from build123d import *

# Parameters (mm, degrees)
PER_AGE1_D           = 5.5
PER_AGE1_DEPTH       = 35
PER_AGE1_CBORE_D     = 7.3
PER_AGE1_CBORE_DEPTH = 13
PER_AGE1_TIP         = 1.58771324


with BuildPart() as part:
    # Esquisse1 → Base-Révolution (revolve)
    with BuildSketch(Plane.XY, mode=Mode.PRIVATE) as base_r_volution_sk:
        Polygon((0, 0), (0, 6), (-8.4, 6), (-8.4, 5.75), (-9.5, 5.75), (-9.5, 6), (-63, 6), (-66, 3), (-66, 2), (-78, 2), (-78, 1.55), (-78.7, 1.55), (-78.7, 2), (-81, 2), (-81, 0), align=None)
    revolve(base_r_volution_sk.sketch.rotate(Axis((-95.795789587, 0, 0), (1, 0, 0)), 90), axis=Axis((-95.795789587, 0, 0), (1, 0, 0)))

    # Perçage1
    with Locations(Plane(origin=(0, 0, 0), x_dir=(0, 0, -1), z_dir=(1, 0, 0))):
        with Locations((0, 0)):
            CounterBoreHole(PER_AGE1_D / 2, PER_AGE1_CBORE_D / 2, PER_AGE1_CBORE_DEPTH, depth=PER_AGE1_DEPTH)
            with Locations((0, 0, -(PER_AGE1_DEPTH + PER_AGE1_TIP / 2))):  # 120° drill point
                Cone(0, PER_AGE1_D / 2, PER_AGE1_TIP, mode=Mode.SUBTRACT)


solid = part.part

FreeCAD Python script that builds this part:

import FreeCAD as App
import Part
import Sketcher
from FreeCAD import Vector
Q = App.Units.Quantity

doc = App.newDocument("Part")
body = doc.addObject("PartDesign::Body", "Body")

# Sketch on XY plane
sketch1 = body.newObject("Sketcher::SketchObject", "Sketch")
sketch1.AttachmentSupport = (doc.getObject("XY_Plane"), [""])
sketch1.MapMode = "FlatFace"
sketch1.addGeometry([
    Part.LineSegment(Vector(0, 0, 0), Vector(0, 6, 0)),  # 0
    Part.LineSegment(Vector(0, 6, 0), Vector(-8.4, 6, 0)),  # 1
    Part.LineSegment(Vector(-8.4, 6, 0), Vector(-8.4, 5.75, 0)),  # 2
    Part.LineSegment(Vector(-8.4, 5.75, 0), Vector(-9.5, 5.75, 0)),  # 3
    Part.LineSegment(Vector(-9.5, 5.75, 0), Vector(-9.5, 6, 0)),  # 4
    Part.LineSegment(Vector(-9.5, 6, 0), Vector(-63, 6, 0)),  # 5
    Part.LineSegment(Vector(-63, 6, 0), Vector(-66, 3, 0)),  # 6
    Part.LineSegment(Vector(-66, 3, 0), Vector(-66, 2, 0)),  # 7
    Part.LineSegment(Vector(-66, 2, 0), Vector(-78, 2, 0)),  # 8
    Part.LineSegment(Vector(-78, 2, 0), Vector(-78, 1.55, 0)),  # 9
    Part.LineSegment(Vector(-78, 1.55, 0), Vector(-78.7, 1.55, 0)),  # 10
    Part.LineSegment(Vector(-78.7, 1.55, 0), Vector(-78.7, 2, 0)),  # 11
    Part.LineSegment(Vector(-78.7, 2, 0), Vector(-81, 2, 0)),  # 12
    Part.LineSegment(Vector(-81, 2, 0), Vector(-81, 0, 0)),  # 13
    Part.LineSegment(Vector(-81, 0, 0), Vector(0, 0, 0)),  # 14
], False)
sketch1.addConstraint([
    Sketcher.Constraint("Coincident", 0, 2, 1, 1),
    Sketcher.Constraint("Coincident", 1, 2, 2, 1),
    Sketcher.Constraint("Coincident", 2, 2, 3, 1),
    Sketcher.Constraint("Coincident", 3, 2, 4, 1),
    Sketcher.Constraint("Coincident", 4, 2, 5, 1),
    Sketcher.Constraint("Coincident", 5, 2, 6, 1),
    Sketcher.Constraint("Coincident", 6, 2, 7, 1),
    Sketcher.Constraint("Coincident", 7, 2, 8, 1),
    Sketcher.Constraint("Coincident", 8, 2, 9, 1),
    Sketcher.Constraint("Coincident", 9, 2, 10, 1),
    Sketcher.Constraint("Coincident", 10, 2, 11, 1),
    Sketcher.Constraint("Coincident", 11, 2, 12, 1),
    Sketcher.Constraint("Coincident", 12, 2, 13, 1),
    Sketcher.Constraint("Coincident", 13, 2, 14, 1),
    Sketcher.Constraint("Coincident", 14, 2, 0, 1),
    Sketcher.Constraint("Vertical", 0),
    Sketcher.Constraint("Horizontal", 1),
    Sketcher.Constraint("Vertical", 2),
    Sketcher.Constraint("Horizontal", 3),
    Sketcher.Constraint("Vertical", 4),
    Sketcher.Constraint("Horizontal", 5),
    Sketcher.Constraint("Vertical", 7),
    Sketcher.Constraint("Horizontal", 8),
    Sketcher.Constraint("Vertical", 9),
    Sketcher.Constraint("Horizontal", 10),
    Sketcher.Constraint("Vertical", 11),
    Sketcher.Constraint("Horizontal", 12),
    Sketcher.Constraint("Vertical", 13),
    Sketcher.Constraint("Horizontal", 14),
    Sketcher.Constraint("Coincident", 14, 2, -1, 1),
    Sketcher.Constraint("Horizontal", 1, 2, 4, 2),
    Sketcher.Constraint("Horizontal", 8, 2, 11, 2),
    Sketcher.Constraint("DistanceX", 8, 2, 8, 1, 12.0),
    Sketcher.Constraint("DistanceX", 14, 1, 14, 2, 81.0),
    Sketcher.Constraint("DistanceY", 0, 1, 0, 2, 6.0),
    Sketcher.Constraint("DistanceY", 7, 2, 7, 1, 1.0),
    Sketcher.Constraint("DistanceY", 13, 2, 13, 1, 2.0),
    Sketcher.Constraint("Angle", 6, Q("-135 deg")),
    Sketcher.Constraint("DistanceX", 1, 2, 1, 1, 8.4),
    Sketcher.Constraint("DistanceX", 3, 2, 3, 1, 1.1),
    Sketcher.Constraint("DistanceX", 5, 2, 5, 1, 53.5),
    Sketcher.Constraint("DistanceX", 10, 2, 10, 1, 0.7),
    Sketcher.Constraint("DistanceY", 2, 2, 2, 1, 0.25),
    Sketcher.Constraint("DistanceY", 9, 2, 9, 1, 0.45),
])
revolution = body.newObject("PartDesign::Revolution", "Revolution")
revolution.Profile = sketch1
revolution.ReferenceAxis = (sketch1, ["H_Axis"])
revolution.Angle = 360

# Sketch on YZ plane
sketch2 = body.newObject("Sketcher::SketchObject", "Sketch001")
sketch2.AttachmentSupport = (doc.getObject("YZ_Plane"), [""])
sketch2.MapMode = "FlatFace"
sketch2.addGeometry(Part.Circle(Vector(0, 0, 0), Vector(0, 0, 1), 2.75), False)
sketch2.addConstraint([
    Sketcher.Constraint("Coincident", 0, 3, -1, 1),
    Sketcher.Constraint("Diameter", 0, 5.5),
])
doc.recompute()
hole = body.newObject("PartDesign::Hole", "Hole")
hole.Profile = sketch2
hole.ThreadType = "None"
hole.Diameter = 5.5
hole.DepthType = "Dimension"
hole.Depth = 35
hole.DrillPoint = "Angled"
hole.DrillPointAngle = 120
hole.HoleCutType = "Counterbore"
hole.HoleCutDiameter = 7.3
hole.HoleCutDepth = 13

doc.recompute()
